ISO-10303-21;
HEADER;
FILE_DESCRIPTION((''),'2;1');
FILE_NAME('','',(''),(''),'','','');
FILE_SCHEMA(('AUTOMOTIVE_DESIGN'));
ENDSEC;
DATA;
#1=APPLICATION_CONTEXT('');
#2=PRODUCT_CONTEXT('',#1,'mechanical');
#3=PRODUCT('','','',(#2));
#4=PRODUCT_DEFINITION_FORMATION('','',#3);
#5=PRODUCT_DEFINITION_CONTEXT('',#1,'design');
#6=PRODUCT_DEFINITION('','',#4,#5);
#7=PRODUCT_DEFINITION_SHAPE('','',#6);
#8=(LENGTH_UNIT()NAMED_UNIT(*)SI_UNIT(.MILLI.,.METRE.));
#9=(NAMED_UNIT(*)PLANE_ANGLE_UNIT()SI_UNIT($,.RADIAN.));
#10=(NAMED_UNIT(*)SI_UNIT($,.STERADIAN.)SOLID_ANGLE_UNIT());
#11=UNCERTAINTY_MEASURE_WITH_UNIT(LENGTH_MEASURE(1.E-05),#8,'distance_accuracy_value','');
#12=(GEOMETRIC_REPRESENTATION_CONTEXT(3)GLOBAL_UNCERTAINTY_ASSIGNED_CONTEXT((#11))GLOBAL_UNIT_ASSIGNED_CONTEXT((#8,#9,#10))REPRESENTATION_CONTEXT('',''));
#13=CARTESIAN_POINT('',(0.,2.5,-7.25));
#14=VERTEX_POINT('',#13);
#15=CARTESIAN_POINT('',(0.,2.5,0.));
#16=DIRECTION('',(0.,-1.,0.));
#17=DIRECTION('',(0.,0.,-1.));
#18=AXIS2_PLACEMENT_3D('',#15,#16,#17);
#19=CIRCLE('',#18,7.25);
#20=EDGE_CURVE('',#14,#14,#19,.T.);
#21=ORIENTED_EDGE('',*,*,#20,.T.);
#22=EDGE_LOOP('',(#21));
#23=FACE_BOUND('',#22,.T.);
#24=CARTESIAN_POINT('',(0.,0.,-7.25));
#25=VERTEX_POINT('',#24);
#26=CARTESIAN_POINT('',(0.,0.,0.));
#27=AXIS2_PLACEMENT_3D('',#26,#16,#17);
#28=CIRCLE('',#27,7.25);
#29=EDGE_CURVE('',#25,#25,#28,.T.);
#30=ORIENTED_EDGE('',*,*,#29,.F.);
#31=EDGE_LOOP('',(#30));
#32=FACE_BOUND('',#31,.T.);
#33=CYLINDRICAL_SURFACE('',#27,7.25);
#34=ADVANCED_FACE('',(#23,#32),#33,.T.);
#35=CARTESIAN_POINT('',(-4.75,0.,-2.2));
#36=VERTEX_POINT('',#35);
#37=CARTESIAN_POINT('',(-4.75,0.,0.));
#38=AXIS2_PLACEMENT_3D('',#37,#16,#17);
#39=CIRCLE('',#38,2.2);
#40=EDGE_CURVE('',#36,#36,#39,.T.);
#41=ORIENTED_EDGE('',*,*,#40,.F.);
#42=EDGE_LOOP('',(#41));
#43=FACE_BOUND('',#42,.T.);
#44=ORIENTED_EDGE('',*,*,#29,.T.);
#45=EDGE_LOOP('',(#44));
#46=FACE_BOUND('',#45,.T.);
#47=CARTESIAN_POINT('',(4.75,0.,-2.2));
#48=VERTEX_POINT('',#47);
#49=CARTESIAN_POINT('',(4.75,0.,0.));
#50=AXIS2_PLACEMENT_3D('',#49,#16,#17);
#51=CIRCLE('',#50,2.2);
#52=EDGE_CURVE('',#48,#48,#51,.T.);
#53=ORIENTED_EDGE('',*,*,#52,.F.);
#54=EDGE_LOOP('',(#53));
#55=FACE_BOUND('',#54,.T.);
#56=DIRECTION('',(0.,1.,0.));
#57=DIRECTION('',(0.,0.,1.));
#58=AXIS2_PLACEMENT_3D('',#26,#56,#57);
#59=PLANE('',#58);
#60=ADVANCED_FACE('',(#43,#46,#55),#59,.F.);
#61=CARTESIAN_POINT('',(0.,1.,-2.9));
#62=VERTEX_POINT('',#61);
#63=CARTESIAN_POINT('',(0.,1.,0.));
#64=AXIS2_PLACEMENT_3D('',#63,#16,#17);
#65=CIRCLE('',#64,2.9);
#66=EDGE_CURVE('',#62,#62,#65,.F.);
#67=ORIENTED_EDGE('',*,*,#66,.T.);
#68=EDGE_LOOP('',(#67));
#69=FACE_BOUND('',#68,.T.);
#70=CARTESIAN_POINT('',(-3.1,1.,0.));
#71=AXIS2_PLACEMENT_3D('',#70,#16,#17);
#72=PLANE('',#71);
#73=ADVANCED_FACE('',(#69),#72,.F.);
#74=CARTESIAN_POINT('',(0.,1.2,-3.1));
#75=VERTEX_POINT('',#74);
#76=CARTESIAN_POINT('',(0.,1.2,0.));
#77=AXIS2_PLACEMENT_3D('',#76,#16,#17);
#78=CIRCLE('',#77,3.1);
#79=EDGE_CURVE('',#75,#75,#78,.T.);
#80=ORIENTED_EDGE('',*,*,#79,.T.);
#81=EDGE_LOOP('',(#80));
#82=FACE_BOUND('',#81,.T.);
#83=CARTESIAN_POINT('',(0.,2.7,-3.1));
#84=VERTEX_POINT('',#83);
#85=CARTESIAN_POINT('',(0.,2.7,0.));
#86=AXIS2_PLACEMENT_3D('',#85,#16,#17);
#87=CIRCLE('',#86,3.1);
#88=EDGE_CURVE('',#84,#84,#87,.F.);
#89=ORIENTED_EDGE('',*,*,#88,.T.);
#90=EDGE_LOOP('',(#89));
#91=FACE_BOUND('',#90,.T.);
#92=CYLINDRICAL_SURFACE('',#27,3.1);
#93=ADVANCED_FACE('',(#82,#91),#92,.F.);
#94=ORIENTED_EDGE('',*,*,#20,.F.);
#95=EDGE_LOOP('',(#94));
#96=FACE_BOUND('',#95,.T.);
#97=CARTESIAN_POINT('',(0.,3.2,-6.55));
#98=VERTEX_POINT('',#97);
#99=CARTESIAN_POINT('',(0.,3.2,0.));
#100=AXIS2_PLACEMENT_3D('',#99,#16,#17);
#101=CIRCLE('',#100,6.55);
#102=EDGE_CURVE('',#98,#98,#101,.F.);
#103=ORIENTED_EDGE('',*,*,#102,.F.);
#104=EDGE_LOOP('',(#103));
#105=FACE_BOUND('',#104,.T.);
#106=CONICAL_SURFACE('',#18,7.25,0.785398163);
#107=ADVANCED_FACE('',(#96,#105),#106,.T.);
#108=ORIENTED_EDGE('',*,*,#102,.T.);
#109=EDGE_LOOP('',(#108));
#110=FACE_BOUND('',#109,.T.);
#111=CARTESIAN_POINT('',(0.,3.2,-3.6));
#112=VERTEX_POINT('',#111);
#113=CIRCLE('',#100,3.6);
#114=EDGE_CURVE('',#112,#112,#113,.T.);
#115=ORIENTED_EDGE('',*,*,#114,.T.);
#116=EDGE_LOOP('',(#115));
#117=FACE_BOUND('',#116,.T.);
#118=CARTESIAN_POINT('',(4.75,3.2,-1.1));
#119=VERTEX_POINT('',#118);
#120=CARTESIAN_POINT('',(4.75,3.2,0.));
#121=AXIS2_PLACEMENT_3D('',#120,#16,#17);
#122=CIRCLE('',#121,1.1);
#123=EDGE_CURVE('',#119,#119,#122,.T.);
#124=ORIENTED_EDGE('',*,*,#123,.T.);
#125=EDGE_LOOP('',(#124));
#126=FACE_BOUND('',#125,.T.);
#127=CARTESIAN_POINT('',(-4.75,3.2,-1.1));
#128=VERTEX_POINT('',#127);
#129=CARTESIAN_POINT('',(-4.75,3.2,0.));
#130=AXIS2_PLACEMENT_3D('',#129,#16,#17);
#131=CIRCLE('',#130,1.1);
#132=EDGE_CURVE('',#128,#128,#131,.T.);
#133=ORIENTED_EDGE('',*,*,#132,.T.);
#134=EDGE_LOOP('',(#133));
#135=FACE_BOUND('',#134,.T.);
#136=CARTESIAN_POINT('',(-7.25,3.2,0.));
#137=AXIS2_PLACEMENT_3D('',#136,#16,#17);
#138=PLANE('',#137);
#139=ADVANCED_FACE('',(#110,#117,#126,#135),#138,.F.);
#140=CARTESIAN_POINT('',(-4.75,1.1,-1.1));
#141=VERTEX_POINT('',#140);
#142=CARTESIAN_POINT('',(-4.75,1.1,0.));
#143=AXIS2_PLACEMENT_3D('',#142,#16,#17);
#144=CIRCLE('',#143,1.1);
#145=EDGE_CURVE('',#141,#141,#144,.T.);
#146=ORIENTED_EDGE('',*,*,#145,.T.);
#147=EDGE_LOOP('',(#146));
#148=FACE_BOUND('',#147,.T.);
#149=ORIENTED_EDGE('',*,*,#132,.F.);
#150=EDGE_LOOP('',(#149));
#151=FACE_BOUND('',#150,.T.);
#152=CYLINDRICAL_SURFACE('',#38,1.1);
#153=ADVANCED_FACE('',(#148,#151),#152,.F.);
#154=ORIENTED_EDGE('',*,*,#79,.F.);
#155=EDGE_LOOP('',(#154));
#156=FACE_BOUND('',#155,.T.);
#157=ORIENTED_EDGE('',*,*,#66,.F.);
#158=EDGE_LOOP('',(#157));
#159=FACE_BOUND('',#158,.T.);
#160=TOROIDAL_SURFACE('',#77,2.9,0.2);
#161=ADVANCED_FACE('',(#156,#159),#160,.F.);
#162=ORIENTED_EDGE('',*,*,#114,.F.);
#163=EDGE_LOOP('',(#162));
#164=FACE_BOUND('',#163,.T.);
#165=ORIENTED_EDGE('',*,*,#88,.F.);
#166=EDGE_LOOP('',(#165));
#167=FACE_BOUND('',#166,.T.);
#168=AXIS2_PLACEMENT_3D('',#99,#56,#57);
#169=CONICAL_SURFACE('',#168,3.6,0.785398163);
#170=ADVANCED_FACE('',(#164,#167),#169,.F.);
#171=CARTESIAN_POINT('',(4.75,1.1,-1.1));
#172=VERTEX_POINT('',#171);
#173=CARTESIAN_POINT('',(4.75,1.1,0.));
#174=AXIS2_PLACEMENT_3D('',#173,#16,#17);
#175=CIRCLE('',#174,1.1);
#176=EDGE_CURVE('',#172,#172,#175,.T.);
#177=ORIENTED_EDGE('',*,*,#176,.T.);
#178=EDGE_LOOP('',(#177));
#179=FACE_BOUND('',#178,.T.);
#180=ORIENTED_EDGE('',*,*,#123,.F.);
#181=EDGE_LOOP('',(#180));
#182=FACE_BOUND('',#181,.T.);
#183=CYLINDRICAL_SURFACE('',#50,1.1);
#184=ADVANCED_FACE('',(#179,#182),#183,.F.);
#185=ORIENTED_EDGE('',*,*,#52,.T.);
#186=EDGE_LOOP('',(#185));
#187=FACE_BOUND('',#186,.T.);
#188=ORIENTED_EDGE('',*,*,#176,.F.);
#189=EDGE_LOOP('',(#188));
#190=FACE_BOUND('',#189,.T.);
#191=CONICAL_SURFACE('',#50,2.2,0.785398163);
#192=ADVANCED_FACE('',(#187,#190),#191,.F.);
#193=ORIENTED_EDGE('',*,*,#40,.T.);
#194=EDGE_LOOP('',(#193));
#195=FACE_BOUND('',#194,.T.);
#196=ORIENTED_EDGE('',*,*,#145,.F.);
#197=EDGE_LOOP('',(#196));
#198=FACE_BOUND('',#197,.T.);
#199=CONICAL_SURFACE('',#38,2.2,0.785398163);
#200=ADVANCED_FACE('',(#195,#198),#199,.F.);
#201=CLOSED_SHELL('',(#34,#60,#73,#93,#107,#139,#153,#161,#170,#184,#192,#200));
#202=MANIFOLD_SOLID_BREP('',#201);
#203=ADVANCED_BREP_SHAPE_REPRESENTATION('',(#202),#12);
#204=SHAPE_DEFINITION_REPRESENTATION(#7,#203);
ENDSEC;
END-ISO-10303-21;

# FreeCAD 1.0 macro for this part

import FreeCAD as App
import Part
import Sketcher
from FreeCAD import Vector
Q = App.Units.Quantity


def edges_at(feature, points):
    """Names of the edges that pass closest to the given points."""
    edges = feature.Shape.Edges
    near = lambda p: min(range(len(edges)), key=lambda i: edges[i].distToShape(Part.Vertex(*p))[0])
    return sorted({f"Edge{near(p) + 1}" for p in points})

doc = App.newDocument("Part")
body = doc.addObject("PartDesign::Body", "Body")

# Sketch on XY plane
sketch1 = doc.addObject("Sketcher::SketchObject", "Sketch")
body.addObject(sketch1)
sketch1.AttachmentSupport = (doc.XY_Plane, [""])
sketch1.MapMode = "FlatFace"
sketch1.addGeometry([
    Part.LineSegment(Vector(-7.2, 0, 0), Vector(0, 0, 0)),  # 0
    Part.LineSegment(Vector(0, 0, 0), Vector(0, 1, 0)),  # 1
    Part.LineSegment(Vector(0, 1, 0), Vector(-3.1, 1, 0)),  # 2
    Part.LineSegment(Vector(-3.1, 1, 0), Vector(-3.1, 3.2, 0)),  # 3
    Part.LineSegment(Vector(-3.1, 3.2, 0), Vector(-7.2, 3.2, 0)),  # 4
    Part.LineSegment(Vector(-7.2, 3.2, 0), Vector(-7.2, 0, 0)),  # 5
], False)
sketch1.addConstraint([
    Sketcher.Constraint("Coincident", 0, 2, 1, 1),
    Sketcher.Constraint("Coincident", 1, 2, 2, 1),
    Sketcher.Constraint("Coincident", 2, 2, 3, 1),
    Sketcher.Constraint("Coincident", 3, 2, 4, 1),
    Sketcher.Constraint("Coincident", 4, 2, 5, 1),
    Sketcher.Constraint("Coincident", 5, 2, 0, 1),
    Sketcher.Constraint("Horizontal", 0),
    Sketcher.Constraint("Vertical", 1),
    Sketcher.Constraint("Horizontal", 2),
    Sketcher.Constraint("Vertical", 3),
    Sketcher.Constraint("Horizontal", 4),
    Sketcher.Constraint("Vertical", 5),
    Sketcher.Constraint("Coincident", 0, 2, -1, 1),
    Sketcher.Constraint("DistanceY", 1, 1, 1, 2, 1.0),
    Sketcher.Constraint("DistanceX", 2, 2, 2, 1, 3.1),
    Sketcher.Constraint("DistanceY", 3, 1, 3, 2, 2.2),
    Sketcher.Constraint("DistanceX", 0, 1, 0, 2, 7.25),
])
revolution = doc.addObject("PartDesign::Revolution", "Revolution")
body.addObject(revolution)
revolution.Profile = sketch1
revolution.ReferenceAxis = (sketch1, ["V_Axis"])
revolution.Angle = 360
doc.recompute()

chamfer = doc.addObject("PartDesign::Chamfer", "Chamfer")
body.addObject(chamfer)
chamfer.Base = (revolution, edges_at(revolution, [(0, 3.2, 3.1)]))
chamfer.Size = 0.5

# Sketch on YZ plane
sketch2 = doc.addObject("Sketcher::SketchObject", "Sketch001")
body.addObject(sketch2)
sketch2.AttachmentSupport = (doc.YZ_Plane, [""])
sketch2.MapMode = "FlatFace"
sketch2.AttachmentOffset = App.Placement(Vector(0, 0, -4.75), App.Rotation())
sketch2.addGeometry([
    Part.LineSegment(Vector(5.7, 0, 0), Vector(0, 0, 0)),  # 0
    Part.LineSegment(Vector(0, 0, 0), Vector(0, -2.2, 0)),  # 1
    Part.LineSegment(Vector(0, -2.2, 0), Vector(1.1, -1.1, 0)),  # 2
    Part.LineSegment(Vector(1.1, -1.1, 0), Vector(5, -1.1, 0)),  # 3
    Part.LineSegment(Vector(5, -1.1, 0), Vector(5.7, 0, 0)),  # 4
], False)
sketch2.addConstraint([
    Sketcher.Constraint("Coincident", 0, 2, 1, 1),
    Sketcher.Constraint("Coincident", 1, 2, 2, 1),
    Sketcher.Constraint("Coincident", 2, 2, 3, 1),
    Sketcher.Constraint("Coincident", 3, 2, 4, 1),
    Sketcher.Constraint("Coincident", 4, 2, 0, 1),
    Sketcher.Constraint("Horizontal", 0),
    Sketcher.Constraint("Vertical", 1),
    Sketcher.Constraint("Horizontal", 3),
    Sketcher.Constraint("Coincident", 0, 2, -1, 1),
    Sketcher.Constraint("Angle", 2, Q("45 deg")),
    Sketcher.Constraint("Angle", 4, Q("59 deg")),
    Sketcher.Constraint("DistanceX", 3, 1, 3, 2, 3.9),
    Sketcher.Constraint("DistanceY", 1, 2, 1, 1, 2.2),
    Sketcher.Constraint("DistanceX", -1, 1, 3, 2, 5.0),
])
groove = doc.addObject("PartDesign::Groove", "Groove")
body.addObject(groove)
groove.Profile = sketch2
groove.ReferenceAxis = (sketch2, ["H_Axis"])
groove.Angle = 360
doc.recompute()

polarpattern = doc.addObject("PartDesign::PolarPattern", "PolarPattern")
body.addObject(polarpattern)
polarpattern.Originals = [groove]
polarpattern.Axis = (doc.Y_Axis, [""])
polarpattern.Angle = 360
polarpattern.Occurrences = 2
body.Tip = polarpattern
doc.recompute()

chamfer2 = doc.addObject("PartDesign::Chamfer", "Chamfer001")
body.addObject(chamfer2)
chamfer2.Base = (polarpattern, edges_at(polarpattern, [(0, 3.2, 7.25)]))
chamfer2.Size = 0.7
doc.recompute()

fillet = doc.addObject("PartDesign::Fillet", "Fillet")
body.addObject(fillet)
fillet.Base = (chamfer2, edges_at(chamfer2, [(0, 1, 3.1)]))
fillet.Radius = 0.2

doc.recompute()
